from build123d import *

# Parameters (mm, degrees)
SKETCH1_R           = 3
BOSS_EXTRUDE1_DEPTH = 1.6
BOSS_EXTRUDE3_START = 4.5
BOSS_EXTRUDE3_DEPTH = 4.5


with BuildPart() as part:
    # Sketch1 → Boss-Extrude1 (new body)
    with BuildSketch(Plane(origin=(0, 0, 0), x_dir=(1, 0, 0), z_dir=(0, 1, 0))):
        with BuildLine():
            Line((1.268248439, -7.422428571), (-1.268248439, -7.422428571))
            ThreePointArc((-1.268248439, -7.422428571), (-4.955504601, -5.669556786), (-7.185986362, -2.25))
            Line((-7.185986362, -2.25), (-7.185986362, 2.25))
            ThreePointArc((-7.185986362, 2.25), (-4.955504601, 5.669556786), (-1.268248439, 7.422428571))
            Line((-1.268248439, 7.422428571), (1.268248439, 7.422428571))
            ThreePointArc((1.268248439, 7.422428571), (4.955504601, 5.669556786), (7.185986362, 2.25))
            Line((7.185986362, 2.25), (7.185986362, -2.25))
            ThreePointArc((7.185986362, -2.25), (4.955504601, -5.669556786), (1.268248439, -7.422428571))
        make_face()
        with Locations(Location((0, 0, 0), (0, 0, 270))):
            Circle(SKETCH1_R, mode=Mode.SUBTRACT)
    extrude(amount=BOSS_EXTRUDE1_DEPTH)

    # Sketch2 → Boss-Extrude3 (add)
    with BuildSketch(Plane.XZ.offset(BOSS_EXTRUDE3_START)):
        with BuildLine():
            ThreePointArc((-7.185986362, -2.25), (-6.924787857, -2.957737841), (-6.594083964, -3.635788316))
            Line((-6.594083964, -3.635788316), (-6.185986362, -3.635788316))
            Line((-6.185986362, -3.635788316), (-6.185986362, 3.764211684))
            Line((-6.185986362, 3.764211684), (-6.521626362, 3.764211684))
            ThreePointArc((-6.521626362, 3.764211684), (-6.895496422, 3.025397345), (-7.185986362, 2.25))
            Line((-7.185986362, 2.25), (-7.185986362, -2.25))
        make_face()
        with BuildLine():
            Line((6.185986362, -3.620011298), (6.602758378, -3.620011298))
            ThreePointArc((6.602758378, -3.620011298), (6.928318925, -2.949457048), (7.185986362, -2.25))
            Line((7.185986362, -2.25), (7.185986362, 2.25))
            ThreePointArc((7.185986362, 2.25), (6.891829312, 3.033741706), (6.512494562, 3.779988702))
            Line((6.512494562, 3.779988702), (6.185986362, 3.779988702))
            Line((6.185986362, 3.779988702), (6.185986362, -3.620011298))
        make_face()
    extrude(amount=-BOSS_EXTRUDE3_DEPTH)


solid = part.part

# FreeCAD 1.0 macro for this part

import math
import FreeCAD as App
import Part
import Sketcher

doc = App.newDocument("Part")
body = doc.addObject("PartDesign::Body", "Body")

# Sketch on XZ plane
sketch1 = body.newObject("Sketcher::SketchObject", "Sketch")
sketch1.AttachmentSupport = (doc.getObject("XZ_Plane"), [""])
sketch1.MapMode = "FlatFace"
sketch1.addGeometry([
    Part.LineSegment(App.Vector(-1.3, 7.4, 0), App.Vector(1.3, 7.4, 0)),  # 0
    Part.ArcOfCircle(Part.Circle(App.Vector(0, 0, 0), App.Vector(0, 0, 1), 7.5), math.radians(17), math.radians(80)),  # 1
    Part.LineSegment(App.Vector(7.2, 2.2, 0), App.Vector(7.2, -2.2, 0)),  # 2
    Part.ArcOfCircle(Part.Circle(App.Vector(0, 0, 0), App.Vector(0, 0, 1), 7.5), math.radians(-80), math.radians(-17)),  # 3
    Part.LineSegment(App.Vector(1.3, -7.4, 0), App.Vector(-1.3, -7.4, 0)),  # 4
    Part.ArcOfCircle(Part.Circle(App.Vector(0, 0, 0), App.Vector(0, 0, 1), 7.5), math.radians(-163), math.radians(-100)),  # 5
    Part.LineSegment(App.Vector(-7.2, -2.2, 0), App.Vector(-7.2, 2.2, 0)),  # 6
    Part.ArcOfCircle(Part.Circle(App.Vector(0, 0, 0), App.Vector(0, 0, 1), 7.5), math.radians(100), math.radians(163)),  # 7
    Part.Circle(App.Vector(0, 0, 0), App.Vector(0, 0, 1), 3),  # 8
], False)
sketch1.addConstraint([
    Sketcher.Constraint("Coincident", 0, 2, 1, 2),
    Sketcher.Constraint("Coincident", 1, 1, 2, 1),
    Sketcher.Constraint("Coincident", 2, 2, 3, 2),
    Sketcher.Constraint("Coincident", 3, 1, 4, 1),
    Sketcher.Constraint("Coincident", 4, 2, 5, 2),
    Sketcher.Constraint("Coincident", 5, 1, 6, 1),
    Sketcher.Constraint("Coincident", 6, 2, 7, 2),
    Sketcher.Constraint("Coincident", 7, 1, 0, 1),
    Sketcher.Constraint("Horizontal", 0),
    Sketcher.Constraint("Vertical", 2),
    Sketcher.Constraint("Horizontal", 4),
    Sketcher.Constraint("Vertical", 6),
    Sketcher.Constraint("Coincident", 1, 3, -1, 1),
    Sketcher.Constraint("Coincident", 3, 3, -1, 1),
    Sketcher.Constraint("Coincident", 5, 3, -1, 1),
    Sketcher.Constraint("Coincident", 7, 3, -1, 1),
    Sketcher.Constraint("Coincident", 8, 3, -1, 1),
    Sketcher.Constraint("Equal", 1, 3),
    Sketcher.Constraint("Equal", 3, 5),
    Sketcher.Constraint("Equal", 5, 7),
    Sketcher.Constraint("Horizontal", 2, 2, 5, 1),
    Sketcher.Constraint("Vertical", 0, 2, 3, 1),
    Sketcher.Constraint("Diameter", 8, 6.0),
    Sketcher.Constraint("Radius", 1, 7.53),
    Sketcher.Constraint("DistanceY", 2, 2, 2, 1, 4.5),
    Sketcher.Constraint("DistanceX", 0, 1, 0, 2, 2.536497),
])
pad1 = body.newObject("PartDesign::Pad", "Pad")
pad1.Profile = sketch1
pad1.Length = 1.6
pad1.Reversed = True

# Sketch on XZ plane
sketch2 = body.newObject("Sketcher::SketchObject", "Sketch001")
sketch2.AttachmentSupport = (doc.getObject("XZ_Plane"), [""])
sketch2.MapMode = "FlatFace"
sketch2.AttachmentOffset = App.Placement(App.Vector(0, 0, 4.5), App.Rotation())
sketch2.addGeometry([
    Part.ArcOfCircle(Part.Circle(App.Vector(0, 0, 0), App.Vector(0, 0, 1), 7.53), math.radians(-162.61), math.radians(-151.13)),  # 0
    Part.LineSegment(App.Vector(-6.59, -3.64, 0), App.Vector(-6.19, -3.64, 0)),  # 1
    Part.LineSegment(App.Vector(-6.19, -3.64, 0), App.Vector(-6.19, 3.76, 0)),  # 2
    Part.LineSegment(App.Vector(-6.19, 3.76, 0), App.Vector(-6.52, 3.76, 0)),  # 3
    Part.ArcOfCircle(Part.Circle(App.Vector(0, 0, 0), App.Vector(0, 0, 1), 7.53), math.radians(150.01), math.radians(162.61)),  # 4
    Part.LineSegment(App.Vector(-7.19, 2.25, 0), App.Vector(-7.19, -2.25, 0)),  # 5
    Part.LineSegment(App.Vector(6.19, -3.62, 0), App.Vector(6.6, -3.62, 0)),  # 6
    Part.ArcOfCircle(Part.Circle(App.Vector(0, 0, 0), App.Vector(0, 0, 1), 7.53), math.radians(-28.73), math.radians(-17.39)),  # 7
    Part.LineSegment(App.Vector(7.19, -2.25, 0), App.Vector(7.19, 2.25, 0)),  # 8
    Part.ArcOfCircle(Part.Circle(App.Vector(0, 0, 0), App.Vector(0, 0, 1), 7.53), math.radians(17.39), math.radians(30.13)),  # 9
    Part.LineSegment(App.Vector(6.51, 3.78, 0), App.Vector(6.19, 3.78, 0)),  # 10
    Part.LineSegment(App.Vector(6.19, 3.78, 0), App.Vector(6.19, -3.62, 0)),  # 11
], False)
sketch2.addConstraint([
    Sketcher.Constraint("Coincident", 0, 2, 1, 1),
    Sketcher.Constraint("Coincident", 1, 2, 2, 1),
    Sketcher.Constraint("Coincident", 2, 2, 3, 1),
    Sketcher.Constraint("Coincident", 3, 2, 4, 1),
    Sketcher.Constraint("Coincident", 4, 2, 5, 1),
    Sketcher.Constraint("Coincident", 5, 2, 0, 1),
    Sketcher.Constraint("Coincident", 6, 2, 7, 1),
    Sketcher.Constraint("Coincident", 7, 2, 8, 1),
    Sketcher.Constraint("Coincident", 8, 2, 9, 1),
    Sketcher.Constraint("Coincident", 9, 2, 10, 1),
    Sketcher.Constraint("Coincident", 10, 2, 11, 1),
    Sketcher.Constraint("Coincident", 11, 2, 6, 1),
    Sketcher.Constraint("Horizontal", 1),
    Sketcher.Constraint("Vertical", 2),
    Sketcher.Constraint("Horizontal", 3),
    Sketcher.Constraint("Vertical", 5),
    Sketcher.Constraint("Horizontal", 6),
    Sketcher.Constraint("Vertical", 8),
    Sketcher.Constraint("Horizontal", 10),
    Sketcher.Constraint("Vertical", 11),
    Sketcher.Constraint("Coincident", 0, 3, -1, 1),
    Sketcher.Constraint("Coincident", 4, 3, -1, 1),
    Sketcher.Constraint("Coincident", 7, 3, -1, 1),
    Sketcher.Constraint("Coincident", 9, 3, -1, 1),
    Sketcher.Constraint("Equal", 0, 4),
    Sketcher.Constraint("Equal", 4, 7),
    Sketcher.Constraint("Equal", 7, 9),
    Sketcher.Constraint("Horizontal", 5, 2, 7, 2),
    Sketcher.Constraint("Equal", 2, 11),
    Sketcher.Constraint("Radius", 0, 7.53),
    Sketcher.Constraint("DistanceY", 2, 1, 2, 2, 7.4),
    Sketcher.Constraint("DistanceY", 5, 2, 5, 1, 4.5),
    Sketcher.Constraint("DistanceX", 4, 2, 2, 2, 1.0),
    Sketcher.Constraint("DistanceX", 10, 2, 8, 2, 1.0),
    Sketcher.Constraint("DistanceX", 3, 2, 3, 1, 0.33564),
    Sketcher.Constraint("DistanceX", 10, 2, 10, 1, 0.326508),
])
pad2 = body.newObject("PartDesign::Pad", "Pad001")
pad2.Profile = sketch2
pad2.Length = 4.5
pad2.Reversed = True

doc.recompute()
